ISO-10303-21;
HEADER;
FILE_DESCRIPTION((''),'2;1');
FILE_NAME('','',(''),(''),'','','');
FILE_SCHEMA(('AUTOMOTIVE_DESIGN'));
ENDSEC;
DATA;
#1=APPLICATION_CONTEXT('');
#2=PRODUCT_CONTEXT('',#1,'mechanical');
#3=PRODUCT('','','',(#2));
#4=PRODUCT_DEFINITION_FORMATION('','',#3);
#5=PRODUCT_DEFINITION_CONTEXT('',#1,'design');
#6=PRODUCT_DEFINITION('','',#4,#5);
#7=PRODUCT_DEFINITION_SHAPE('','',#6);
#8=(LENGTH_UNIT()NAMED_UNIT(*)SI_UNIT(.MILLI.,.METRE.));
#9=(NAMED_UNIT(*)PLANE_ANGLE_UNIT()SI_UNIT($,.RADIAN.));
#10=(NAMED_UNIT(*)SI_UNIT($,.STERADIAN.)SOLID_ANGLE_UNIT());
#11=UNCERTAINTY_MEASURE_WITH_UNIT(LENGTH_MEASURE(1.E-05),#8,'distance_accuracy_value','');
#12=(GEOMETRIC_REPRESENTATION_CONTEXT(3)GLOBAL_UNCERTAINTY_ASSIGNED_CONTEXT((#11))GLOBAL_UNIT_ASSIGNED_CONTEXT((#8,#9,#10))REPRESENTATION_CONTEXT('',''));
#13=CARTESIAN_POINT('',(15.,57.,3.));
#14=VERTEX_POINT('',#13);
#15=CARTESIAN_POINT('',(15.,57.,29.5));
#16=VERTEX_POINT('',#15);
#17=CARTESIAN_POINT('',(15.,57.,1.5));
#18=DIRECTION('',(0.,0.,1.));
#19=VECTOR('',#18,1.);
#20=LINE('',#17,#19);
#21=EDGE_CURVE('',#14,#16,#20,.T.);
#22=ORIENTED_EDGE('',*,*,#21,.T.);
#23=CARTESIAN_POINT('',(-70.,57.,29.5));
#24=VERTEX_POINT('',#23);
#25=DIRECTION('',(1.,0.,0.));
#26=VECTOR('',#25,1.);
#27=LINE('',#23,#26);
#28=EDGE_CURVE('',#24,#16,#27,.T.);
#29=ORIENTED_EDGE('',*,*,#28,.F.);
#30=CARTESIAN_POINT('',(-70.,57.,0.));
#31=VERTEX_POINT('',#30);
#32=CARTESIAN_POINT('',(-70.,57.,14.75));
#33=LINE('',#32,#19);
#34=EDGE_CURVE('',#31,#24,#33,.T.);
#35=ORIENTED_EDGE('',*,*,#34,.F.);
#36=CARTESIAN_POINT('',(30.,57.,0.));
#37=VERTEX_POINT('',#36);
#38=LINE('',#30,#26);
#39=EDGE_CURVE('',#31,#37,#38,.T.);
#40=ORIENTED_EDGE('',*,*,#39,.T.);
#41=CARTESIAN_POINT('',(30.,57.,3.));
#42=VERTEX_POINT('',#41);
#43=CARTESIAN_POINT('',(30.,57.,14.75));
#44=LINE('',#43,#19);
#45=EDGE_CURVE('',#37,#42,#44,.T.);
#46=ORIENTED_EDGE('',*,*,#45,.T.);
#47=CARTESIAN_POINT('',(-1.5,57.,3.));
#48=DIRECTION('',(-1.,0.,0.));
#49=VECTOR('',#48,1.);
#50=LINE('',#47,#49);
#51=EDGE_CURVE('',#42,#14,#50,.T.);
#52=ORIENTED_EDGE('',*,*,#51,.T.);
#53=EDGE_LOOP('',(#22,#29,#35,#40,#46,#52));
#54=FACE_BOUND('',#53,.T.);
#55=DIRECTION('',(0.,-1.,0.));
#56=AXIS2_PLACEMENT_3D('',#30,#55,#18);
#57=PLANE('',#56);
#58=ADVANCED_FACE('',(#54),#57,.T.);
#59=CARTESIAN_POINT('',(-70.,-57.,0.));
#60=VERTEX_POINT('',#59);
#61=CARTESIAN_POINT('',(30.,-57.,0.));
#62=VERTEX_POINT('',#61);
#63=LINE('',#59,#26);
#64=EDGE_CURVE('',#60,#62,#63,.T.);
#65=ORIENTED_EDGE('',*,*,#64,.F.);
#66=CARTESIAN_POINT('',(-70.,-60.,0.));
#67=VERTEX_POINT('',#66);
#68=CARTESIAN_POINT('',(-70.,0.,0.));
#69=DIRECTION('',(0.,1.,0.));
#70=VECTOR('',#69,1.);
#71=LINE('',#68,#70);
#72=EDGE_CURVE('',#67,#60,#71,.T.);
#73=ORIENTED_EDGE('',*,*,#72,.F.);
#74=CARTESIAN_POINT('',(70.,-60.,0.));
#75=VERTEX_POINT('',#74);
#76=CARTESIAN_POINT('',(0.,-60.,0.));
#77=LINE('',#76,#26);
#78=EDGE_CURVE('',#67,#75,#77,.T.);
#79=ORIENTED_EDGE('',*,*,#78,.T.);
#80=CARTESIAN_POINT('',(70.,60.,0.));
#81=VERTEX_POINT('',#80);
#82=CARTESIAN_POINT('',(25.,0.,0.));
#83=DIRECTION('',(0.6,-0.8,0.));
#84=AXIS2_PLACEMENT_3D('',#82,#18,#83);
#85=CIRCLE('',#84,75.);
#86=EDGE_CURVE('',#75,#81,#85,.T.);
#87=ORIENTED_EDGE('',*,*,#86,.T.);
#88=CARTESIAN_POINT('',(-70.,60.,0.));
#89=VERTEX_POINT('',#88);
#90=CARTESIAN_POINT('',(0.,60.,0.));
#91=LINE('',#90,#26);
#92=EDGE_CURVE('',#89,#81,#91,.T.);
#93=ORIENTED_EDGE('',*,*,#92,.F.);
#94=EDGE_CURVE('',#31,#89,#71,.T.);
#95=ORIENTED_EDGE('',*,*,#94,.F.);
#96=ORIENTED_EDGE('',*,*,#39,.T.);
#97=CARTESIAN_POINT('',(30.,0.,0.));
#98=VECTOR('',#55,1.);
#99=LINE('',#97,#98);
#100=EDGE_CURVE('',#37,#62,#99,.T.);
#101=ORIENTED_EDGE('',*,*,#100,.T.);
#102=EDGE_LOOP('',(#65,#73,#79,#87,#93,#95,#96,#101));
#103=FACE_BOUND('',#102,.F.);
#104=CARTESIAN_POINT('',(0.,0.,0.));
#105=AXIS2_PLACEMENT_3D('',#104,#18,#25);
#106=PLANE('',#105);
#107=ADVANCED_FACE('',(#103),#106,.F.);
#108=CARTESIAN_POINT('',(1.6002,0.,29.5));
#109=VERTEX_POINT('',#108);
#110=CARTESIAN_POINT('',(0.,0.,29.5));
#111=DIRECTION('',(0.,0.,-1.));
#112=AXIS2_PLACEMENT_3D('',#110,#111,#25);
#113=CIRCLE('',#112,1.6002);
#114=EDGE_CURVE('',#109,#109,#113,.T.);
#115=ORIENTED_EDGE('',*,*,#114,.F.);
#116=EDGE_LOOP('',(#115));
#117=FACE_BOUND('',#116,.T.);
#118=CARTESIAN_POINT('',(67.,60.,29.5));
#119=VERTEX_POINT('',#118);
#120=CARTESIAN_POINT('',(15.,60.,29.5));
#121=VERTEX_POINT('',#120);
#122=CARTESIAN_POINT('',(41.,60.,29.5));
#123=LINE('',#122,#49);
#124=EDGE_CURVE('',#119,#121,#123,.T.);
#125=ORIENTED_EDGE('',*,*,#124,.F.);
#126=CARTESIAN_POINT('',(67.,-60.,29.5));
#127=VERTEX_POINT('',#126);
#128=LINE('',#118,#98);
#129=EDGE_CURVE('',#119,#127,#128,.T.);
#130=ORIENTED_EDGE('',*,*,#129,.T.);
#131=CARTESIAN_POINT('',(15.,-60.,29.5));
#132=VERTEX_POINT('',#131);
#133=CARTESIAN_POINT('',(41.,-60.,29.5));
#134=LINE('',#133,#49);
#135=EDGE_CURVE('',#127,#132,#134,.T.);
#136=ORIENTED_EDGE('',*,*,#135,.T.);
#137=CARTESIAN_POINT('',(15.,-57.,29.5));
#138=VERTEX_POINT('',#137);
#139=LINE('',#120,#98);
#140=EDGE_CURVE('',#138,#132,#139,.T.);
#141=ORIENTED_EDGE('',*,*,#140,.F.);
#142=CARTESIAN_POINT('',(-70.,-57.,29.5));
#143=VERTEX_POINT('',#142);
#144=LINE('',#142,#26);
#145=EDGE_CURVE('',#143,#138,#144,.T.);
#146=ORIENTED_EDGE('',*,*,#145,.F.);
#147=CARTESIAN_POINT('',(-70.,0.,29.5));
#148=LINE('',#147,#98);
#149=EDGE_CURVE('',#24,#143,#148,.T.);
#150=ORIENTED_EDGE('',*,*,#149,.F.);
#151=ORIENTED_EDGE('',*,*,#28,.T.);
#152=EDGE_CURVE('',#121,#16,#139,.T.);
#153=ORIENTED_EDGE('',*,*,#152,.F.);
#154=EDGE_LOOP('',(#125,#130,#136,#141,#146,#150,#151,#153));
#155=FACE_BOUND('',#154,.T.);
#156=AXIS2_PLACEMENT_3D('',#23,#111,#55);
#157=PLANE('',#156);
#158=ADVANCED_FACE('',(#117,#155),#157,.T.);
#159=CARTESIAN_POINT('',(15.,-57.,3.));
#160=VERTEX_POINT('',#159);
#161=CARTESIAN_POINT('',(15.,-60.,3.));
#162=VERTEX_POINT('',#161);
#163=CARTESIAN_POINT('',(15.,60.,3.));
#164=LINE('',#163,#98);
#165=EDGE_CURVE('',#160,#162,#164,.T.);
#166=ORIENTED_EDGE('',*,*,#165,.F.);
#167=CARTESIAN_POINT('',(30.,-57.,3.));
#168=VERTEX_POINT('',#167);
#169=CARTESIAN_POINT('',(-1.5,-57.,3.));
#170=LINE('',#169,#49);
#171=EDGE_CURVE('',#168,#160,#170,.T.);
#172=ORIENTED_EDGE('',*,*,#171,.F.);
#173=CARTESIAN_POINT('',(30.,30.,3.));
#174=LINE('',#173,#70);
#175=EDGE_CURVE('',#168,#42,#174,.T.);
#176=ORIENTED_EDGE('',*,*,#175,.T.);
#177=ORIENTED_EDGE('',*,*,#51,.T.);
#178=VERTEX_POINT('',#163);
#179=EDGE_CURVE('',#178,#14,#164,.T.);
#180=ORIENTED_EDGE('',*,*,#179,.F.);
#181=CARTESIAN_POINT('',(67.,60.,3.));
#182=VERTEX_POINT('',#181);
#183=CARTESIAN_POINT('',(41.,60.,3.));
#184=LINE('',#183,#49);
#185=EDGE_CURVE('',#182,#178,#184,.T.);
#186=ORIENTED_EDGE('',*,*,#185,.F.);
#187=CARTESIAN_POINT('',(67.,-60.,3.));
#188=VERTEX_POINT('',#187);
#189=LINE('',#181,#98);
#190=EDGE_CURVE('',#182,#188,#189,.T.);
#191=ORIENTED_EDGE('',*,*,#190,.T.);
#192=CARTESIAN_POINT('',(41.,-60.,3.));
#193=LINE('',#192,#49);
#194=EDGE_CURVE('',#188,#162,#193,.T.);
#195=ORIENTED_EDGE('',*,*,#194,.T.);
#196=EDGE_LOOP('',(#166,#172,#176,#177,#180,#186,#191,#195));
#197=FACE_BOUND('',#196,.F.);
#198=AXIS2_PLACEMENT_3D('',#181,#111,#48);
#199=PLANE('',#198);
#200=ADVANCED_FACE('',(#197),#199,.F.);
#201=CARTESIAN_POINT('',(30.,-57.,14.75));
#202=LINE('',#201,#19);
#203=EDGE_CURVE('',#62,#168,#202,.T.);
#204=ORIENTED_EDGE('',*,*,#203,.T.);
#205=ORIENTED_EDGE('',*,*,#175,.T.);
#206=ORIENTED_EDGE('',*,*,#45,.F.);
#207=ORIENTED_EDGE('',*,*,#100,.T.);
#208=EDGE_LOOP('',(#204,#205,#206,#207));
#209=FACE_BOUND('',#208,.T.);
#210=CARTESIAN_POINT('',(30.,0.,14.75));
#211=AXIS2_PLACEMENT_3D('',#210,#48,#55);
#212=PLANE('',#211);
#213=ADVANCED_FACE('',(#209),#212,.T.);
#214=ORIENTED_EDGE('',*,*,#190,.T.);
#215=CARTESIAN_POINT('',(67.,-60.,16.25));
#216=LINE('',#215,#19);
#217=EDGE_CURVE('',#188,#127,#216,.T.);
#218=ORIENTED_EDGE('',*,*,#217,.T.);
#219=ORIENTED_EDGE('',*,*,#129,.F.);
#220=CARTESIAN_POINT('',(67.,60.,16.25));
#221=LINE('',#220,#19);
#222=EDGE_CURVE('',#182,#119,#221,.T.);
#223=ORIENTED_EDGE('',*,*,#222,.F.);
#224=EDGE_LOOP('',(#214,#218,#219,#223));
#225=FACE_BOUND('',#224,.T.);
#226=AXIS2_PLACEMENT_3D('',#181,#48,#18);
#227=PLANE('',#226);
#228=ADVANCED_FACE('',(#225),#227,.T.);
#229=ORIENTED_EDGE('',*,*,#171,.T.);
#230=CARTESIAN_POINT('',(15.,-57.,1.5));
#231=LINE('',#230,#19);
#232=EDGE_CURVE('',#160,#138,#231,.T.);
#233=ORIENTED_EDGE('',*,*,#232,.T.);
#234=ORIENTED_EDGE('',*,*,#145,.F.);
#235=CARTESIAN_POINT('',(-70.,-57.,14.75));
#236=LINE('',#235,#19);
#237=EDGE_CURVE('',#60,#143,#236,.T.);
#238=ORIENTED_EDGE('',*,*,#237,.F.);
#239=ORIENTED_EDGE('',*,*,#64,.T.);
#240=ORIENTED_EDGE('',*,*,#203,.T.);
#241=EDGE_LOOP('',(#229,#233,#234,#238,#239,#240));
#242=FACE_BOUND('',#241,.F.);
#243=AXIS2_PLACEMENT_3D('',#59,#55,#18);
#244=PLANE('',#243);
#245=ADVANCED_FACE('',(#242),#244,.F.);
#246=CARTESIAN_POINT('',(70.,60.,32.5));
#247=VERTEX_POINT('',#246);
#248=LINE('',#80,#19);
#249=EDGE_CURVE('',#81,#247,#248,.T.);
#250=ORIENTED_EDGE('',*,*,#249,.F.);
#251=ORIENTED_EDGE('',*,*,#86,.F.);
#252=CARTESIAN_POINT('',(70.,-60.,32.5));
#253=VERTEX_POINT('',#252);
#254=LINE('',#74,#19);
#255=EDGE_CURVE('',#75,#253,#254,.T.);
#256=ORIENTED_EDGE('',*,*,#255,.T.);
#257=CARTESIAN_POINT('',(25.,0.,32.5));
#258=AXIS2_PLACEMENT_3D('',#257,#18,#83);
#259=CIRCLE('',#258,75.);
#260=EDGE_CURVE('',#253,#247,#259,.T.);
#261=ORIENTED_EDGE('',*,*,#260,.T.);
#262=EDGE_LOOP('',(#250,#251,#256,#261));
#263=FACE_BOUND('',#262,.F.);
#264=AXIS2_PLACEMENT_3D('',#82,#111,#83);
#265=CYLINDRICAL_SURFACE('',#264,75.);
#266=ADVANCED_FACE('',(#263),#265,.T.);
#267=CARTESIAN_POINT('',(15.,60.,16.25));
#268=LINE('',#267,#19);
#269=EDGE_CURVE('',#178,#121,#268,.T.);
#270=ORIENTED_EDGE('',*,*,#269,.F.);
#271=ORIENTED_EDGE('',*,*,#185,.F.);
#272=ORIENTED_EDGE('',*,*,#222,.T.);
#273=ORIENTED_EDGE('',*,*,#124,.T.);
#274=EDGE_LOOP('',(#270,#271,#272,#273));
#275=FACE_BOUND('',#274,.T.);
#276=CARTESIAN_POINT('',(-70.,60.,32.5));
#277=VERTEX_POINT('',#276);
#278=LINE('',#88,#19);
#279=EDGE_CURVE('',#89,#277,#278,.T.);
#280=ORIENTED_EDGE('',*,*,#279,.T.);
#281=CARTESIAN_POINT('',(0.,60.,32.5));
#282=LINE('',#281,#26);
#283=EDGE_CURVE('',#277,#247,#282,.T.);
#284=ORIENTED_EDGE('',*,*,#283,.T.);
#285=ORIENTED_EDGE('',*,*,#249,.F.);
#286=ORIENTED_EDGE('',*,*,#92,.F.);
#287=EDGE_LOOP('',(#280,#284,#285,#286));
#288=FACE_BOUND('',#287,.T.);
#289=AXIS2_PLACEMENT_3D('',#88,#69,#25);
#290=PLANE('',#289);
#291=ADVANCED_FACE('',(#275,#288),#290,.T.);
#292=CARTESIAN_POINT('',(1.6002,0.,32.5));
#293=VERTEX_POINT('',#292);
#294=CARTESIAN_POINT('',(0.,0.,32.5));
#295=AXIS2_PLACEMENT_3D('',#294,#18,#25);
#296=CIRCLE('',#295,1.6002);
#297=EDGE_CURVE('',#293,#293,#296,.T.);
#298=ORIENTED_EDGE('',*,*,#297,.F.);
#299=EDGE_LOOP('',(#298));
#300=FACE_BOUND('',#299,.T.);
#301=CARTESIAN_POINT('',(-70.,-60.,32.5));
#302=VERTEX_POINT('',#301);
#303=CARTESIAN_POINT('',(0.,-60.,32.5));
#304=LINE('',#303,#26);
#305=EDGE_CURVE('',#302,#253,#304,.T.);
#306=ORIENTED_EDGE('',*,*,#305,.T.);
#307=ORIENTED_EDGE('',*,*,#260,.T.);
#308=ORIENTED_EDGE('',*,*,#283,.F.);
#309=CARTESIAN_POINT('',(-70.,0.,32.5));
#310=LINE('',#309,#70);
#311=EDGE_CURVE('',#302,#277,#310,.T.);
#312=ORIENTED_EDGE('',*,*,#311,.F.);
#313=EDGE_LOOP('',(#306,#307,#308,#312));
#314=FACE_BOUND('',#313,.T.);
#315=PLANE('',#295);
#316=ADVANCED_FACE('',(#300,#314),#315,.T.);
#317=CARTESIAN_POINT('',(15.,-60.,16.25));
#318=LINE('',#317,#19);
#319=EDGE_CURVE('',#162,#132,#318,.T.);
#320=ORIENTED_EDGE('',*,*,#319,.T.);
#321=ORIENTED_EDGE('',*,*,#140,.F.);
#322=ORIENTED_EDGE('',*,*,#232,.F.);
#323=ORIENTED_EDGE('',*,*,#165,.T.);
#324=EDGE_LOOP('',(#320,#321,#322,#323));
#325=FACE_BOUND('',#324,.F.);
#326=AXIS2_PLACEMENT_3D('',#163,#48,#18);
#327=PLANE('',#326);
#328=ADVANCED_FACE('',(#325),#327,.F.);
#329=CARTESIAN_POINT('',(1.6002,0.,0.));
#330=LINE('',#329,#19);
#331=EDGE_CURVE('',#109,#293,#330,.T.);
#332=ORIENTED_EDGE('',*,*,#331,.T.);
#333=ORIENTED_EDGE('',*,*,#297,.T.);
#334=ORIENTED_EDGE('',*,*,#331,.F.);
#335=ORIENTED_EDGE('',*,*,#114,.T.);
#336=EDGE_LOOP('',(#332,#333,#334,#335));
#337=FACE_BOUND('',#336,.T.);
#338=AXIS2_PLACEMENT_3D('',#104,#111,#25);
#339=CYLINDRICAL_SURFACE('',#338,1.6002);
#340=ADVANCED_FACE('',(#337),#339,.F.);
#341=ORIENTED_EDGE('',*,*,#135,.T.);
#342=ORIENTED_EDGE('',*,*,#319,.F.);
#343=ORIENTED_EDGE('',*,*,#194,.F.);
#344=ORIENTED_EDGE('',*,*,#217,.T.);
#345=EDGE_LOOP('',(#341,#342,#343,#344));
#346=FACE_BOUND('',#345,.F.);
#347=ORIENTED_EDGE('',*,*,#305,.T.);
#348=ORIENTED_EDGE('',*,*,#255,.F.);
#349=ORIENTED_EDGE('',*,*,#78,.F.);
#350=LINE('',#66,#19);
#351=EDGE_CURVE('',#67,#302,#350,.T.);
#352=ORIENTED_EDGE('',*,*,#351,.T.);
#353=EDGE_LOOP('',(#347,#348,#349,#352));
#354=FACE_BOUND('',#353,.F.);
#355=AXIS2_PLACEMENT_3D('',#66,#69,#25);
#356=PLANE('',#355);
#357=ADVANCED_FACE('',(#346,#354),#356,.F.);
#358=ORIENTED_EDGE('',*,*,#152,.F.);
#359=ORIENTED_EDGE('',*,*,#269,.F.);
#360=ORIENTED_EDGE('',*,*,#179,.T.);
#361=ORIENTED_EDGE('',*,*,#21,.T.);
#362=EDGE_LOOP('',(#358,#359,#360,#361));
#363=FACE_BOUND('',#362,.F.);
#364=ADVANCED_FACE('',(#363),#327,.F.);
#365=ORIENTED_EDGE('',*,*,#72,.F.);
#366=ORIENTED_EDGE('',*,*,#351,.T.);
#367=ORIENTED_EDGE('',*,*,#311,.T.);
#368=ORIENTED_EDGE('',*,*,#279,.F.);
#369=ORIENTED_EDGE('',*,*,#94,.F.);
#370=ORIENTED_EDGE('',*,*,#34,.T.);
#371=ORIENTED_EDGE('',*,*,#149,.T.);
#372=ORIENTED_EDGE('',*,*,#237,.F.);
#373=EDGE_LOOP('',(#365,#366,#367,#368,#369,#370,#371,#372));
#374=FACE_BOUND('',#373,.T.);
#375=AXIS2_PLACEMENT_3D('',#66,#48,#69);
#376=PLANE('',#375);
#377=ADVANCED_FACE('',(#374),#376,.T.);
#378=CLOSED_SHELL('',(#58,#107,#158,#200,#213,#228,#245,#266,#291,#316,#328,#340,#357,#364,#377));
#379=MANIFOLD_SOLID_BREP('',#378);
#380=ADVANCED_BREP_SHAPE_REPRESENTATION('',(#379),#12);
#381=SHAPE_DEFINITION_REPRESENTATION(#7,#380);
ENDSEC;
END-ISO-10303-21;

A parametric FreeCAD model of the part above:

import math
import FreeCAD as App
import Part
import Sketcher
from FreeCAD import Vector

doc = App.newDocument("Part")
params = doc.addObject("Spreadsheet::Sheet", "Params")
for row, (alias, value) in enumerate([
    ("sketch1_radius", "75 mm"),
    ("sketch1_width", "140 mm"),
    ("sketch1_height", "120 mm"),
    ("pad1_length", "32.5 mm"),
    ("sketch2_width", "52 mm"),
    ("sketch2_height", "26.5 mm"),
    ("pocket1_length", "120 mm"),
    ("sketch3_width", "114 mm"),
    ("sketch3_height", "29.5 mm"),
    ("pocket2_length", "100 mm"),
], start=1):
    params.set(f"A{row}", alias)
    params.set(f"B{row}", "=" + value)
    params.setAlias(f"B{row}", alias)

body = doc.addObject("PartDesign::Body", "Body")

sketch1 = doc.addObject("Sketcher::SketchObject", "Sketch")
body.addObject(sketch1)
sketch1.AttachmentSupport = (doc.XY_Plane, [""])
sketch1.MapMode = "FlatFace"
sketch1.addGeometry(Part.LineSegment(Vector(-70, 60, 0), Vector(-70, -60, 0)), False)
sketch1.addGeometry(Part.LineSegment(Vector(-70, -60, 0), Vector(70, -60, 0)), False)
sketch1.addGeometry(Part.ArcOfCircle(Part.Circle(Vector(25, 0, 0), Vector(0, 0, 1), 75), math.radians(-53), math.radians(53)), False)
sketch1.addGeometry(Part.LineSegment(Vector(70, 60, 0), Vector(-70, 60, 0)), False)
sketch1.addGeometry(Part.Circle(Vector(0, 0, 0), Vector(0, 0, 1), 1.6), False)
sketch1.addConstraint(Sketcher.Constraint("Coincident", 0, 2, 1, 1))
sketch1.addConstraint(Sketcher.Constraint("Coincident", 1, 2, 2, 1))
sketch1.addConstraint(Sketcher.Constraint("Coincident", 2, 2, 3, 1))
sketch1.addConstraint(Sketcher.Constraint("Coincident", 3, 2, 0, 1))
sketch1.addConstraint(Sketcher.Constraint("Vertical", 0))
sketch1.addConstraint(Sketcher.Constraint("Horizontal", 1))
sketch1.addConstraint(Sketcher.Constraint("Horizontal", 3))
sketch1.addConstraint(Sketcher.Constraint("Coincident", 4, 3, -1, 1))
sketch1.addConstraint(Sketcher.Constraint("Symmetric", 0, 2, 2, 2, -1, 1))
sketch1.addConstraint(Sketcher.Constraint("PointOnObject", 2, 3, -1))
sketch1.addConstraint(Sketcher.Constraint("Radius", 2, 75.0))
sketch1.addConstraint(Sketcher.Constraint("DistanceX", 1, 1, 1, 2, 140.0))
sketch1.addConstraint(Sketcher.Constraint("DistanceY", 0, 2, 0, 1, 120.0))
sketch1.addConstraint(Sketcher.Constraint("Diameter", 4, 3.2004))
sketch1.setExpression("Constraints[10]", "Params.sketch1_radius")
sketch1.setExpression("Constraints[11]", "Params.sketch1_width")
sketch1.setExpression("Constraints[12]", "Params.sketch1_height")
pad1 = doc.addObject("PartDesign::Pad", "Pad")
body.addObject(pad1)
pad1.Profile = sketch1
pad1.setExpression("Length", "Params.pad1_length")

sketch2 = doc.addObject("Sketcher::SketchObject", "Sketch001")
body.addObject(sketch2)
sketch2.AttachmentSupport = (doc.XZ_Plane, [""])
sketch2.MapMode = "FlatFace"
sketch2.AttachmentOffset = App.Placement(Vector(0, 0, -60), App.Rotation())
sketch2.addGeometry(Part.LineSegment(Vector(67, 30, 0), Vector(67, 3, 0)), False)
sketch2.addGeometry(Part.LineSegment(Vector(67, 3, 0), Vector(15, 3, 0)), False)
sketch2.addGeometry(Part.LineSegment(Vector(15, 3, 0), Vector(15, 30, 0)), False)
sketch2.addGeometry(Part.LineSegment(Vector(15, 30, 0), Vector(67, 30, 0)), False)
sketch2.addConstraint(Sketcher.Constraint("Coincident", 0, 2, 1, 1))
sketch2.addConstraint(Sketcher.Constraint("Coincident", 1, 2, 2, 1))
sketch2.addConstraint(Sketcher.Constraint("Coincident", 2, 2, 3, 1))
sketch2.addConstraint(Sketcher.Constraint("Coincident", 3, 2, 0, 1))
sketch2.addConstraint(Sketcher.Constraint("Vertical", 0))
sketch2.addConstraint(Sketcher.Constraint("Horizontal", 1))
sketch2.addConstraint(Sketcher.Constraint("Vertical", 2))
sketch2.addConstraint(Sketcher.Constraint("Horizontal", 3))
sketch2.addConstraint(Sketcher.Constraint("DistanceX", 1, 2, 1, 1, 52.0))
sketch2.addConstraint(Sketcher.Constraint("DistanceY", 0, 2, 0, 1, 26.5))
sketch2.addConstraint(Sketcher.Constraint("DistanceX", -1, 1, 0, 2, 67.0))
sketch2.addConstraint(Sketcher.Constraint("DistanceY", -1, 1, 0, 2, 3.0))
sketch2.setExpression("Constraints[8]", "Params.sketch2_width")
sketch2.setExpression("Constraints[9]", "Params.sketch2_height")
pocket1 = doc.addObject("PartDesign::Pocket", "Pocket")
body.addObject(pocket1)
pocket1.Profile = sketch2
pocket1.setExpression("Length", "Params.pocket1_length")
pocket1.Reversed = True

sketch3 = doc.addObject("Sketcher::SketchObject", "Sketch002")
body.addObject(sketch3)
sketch3.AttachmentSupport = (doc.YZ_Plane, [""])
sketch3.MapMode = "FlatFace"
sketch3.AttachmentOffset = App.Placement(Vector(0, 0, -70), App.Rotation())
sketch3.addGeometry(Part.LineSegment(Vector(57, 30, 0), Vector(57, 0, 0)), False)
sketch3.addGeometry(Part.LineSegment(Vector(57, 0, 0), Vector(-57, 0, 0)), False)
sketch3.addGeometry(Part.LineSegment(Vector(-57, 0, 0), Vector(-57, 30, 0)), False)
sketch3.addGeometry(Part.LineSegment(Vector(-57, 30, 0), Vector(57, 30, 0)), False)
sketch3.addConstraint(Sketcher.Constraint("Coincident", 0, 2, 1, 1))
sketch3.addConstraint(Sketcher.Constraint("Coincident", 1, 2, 2, 1))
sketch3.addConstraint(Sketcher.Constraint("Coincident", 2, 2, 3, 1))
sketch3.addConstraint(Sketcher.Constraint("Coincident", 3, 2, 0, 1))
sketch3.addConstraint(Sketcher.Constraint("Vertical", 0))
sketch3.addConstraint(Sketcher.Constraint("Horizontal", 1))
sketch3.addConstraint(Sketcher.Constraint("Vertical", 2))
sketch3.addConstraint(Sketcher.Constraint("Horizontal", 3))
sketch3.addConstraint(Sketcher.Constraint("Symmetric", 0, 2, 1, 2, -1, 1))
sketch3.addConstraint(Sketcher.Constraint("DistanceX", 1, 2, 1, 1, 114.0))
sketch3.addConstraint(Sketcher.Constraint("DistanceY", 0, 2, 0, 1, 29.5))
sketch3.setExpression("Constraints[9]", "Params.sketch3_width")
sketch3.setExpression("Constraints[10]", "Params.sketch3_height")
pocket2 = doc.addObject("PartDesign::Pocket", "Pocket001")
body.addObject(pocket2)
pocket2.Profile = sketch3
pocket2.setExpression("Length", "Params.pocket2_length")
pocket2.Reversed = True

doc.recompute()
